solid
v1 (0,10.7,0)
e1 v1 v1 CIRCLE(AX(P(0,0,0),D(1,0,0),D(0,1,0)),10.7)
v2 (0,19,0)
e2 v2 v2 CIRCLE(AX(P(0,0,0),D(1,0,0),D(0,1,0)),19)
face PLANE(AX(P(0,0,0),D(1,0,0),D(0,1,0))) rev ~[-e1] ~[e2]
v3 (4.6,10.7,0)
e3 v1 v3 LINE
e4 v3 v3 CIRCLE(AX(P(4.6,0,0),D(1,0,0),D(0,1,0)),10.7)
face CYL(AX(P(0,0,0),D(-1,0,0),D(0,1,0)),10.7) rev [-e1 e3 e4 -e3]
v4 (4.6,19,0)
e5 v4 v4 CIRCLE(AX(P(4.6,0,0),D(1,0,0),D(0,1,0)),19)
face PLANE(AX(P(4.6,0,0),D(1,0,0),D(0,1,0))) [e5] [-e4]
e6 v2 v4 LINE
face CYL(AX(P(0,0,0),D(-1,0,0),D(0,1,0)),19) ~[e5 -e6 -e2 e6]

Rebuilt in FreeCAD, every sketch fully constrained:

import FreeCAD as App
import Part
import Sketcher

doc = App.newDocument("Part")
body = doc.addObject("PartDesign::Body", "Body")

sketch1 = body.newObject("Sketcher::SketchObject", "Sketch")
sketch1.AttachmentSupport = (doc.getObject("YZ_Plane"), [""])
sketch1.MapMode = "FlatFace"
sketch1.addGeometry(Part.Circle(App.Vector(0, 0, 0), App.Vector(0, 0, 1), 19), False)
sketch1.addGeometry(Part.Circle(App.Vector(0, 0, 0), App.Vector(0, 0, 1), 10.7), False)
sketch1.addConstraint(Sketcher.Constraint("Coincident", 0, 3, -1, 1))
sketch1.addConstraint(Sketcher.Constraint("Coincident", 1, 3, -1, 1))
sketch1.addConstraint(Sketcher.Constraint("Diameter", 0, 38.0))
sketch1.addConstraint(Sketcher.Constraint("Diameter", 1, 21.4))
pad1 = body.newObject("PartDesign::Pad", "Pad")
pad1.Profile = sketch1
pad1.Length = 4.6

doc.recompute()
